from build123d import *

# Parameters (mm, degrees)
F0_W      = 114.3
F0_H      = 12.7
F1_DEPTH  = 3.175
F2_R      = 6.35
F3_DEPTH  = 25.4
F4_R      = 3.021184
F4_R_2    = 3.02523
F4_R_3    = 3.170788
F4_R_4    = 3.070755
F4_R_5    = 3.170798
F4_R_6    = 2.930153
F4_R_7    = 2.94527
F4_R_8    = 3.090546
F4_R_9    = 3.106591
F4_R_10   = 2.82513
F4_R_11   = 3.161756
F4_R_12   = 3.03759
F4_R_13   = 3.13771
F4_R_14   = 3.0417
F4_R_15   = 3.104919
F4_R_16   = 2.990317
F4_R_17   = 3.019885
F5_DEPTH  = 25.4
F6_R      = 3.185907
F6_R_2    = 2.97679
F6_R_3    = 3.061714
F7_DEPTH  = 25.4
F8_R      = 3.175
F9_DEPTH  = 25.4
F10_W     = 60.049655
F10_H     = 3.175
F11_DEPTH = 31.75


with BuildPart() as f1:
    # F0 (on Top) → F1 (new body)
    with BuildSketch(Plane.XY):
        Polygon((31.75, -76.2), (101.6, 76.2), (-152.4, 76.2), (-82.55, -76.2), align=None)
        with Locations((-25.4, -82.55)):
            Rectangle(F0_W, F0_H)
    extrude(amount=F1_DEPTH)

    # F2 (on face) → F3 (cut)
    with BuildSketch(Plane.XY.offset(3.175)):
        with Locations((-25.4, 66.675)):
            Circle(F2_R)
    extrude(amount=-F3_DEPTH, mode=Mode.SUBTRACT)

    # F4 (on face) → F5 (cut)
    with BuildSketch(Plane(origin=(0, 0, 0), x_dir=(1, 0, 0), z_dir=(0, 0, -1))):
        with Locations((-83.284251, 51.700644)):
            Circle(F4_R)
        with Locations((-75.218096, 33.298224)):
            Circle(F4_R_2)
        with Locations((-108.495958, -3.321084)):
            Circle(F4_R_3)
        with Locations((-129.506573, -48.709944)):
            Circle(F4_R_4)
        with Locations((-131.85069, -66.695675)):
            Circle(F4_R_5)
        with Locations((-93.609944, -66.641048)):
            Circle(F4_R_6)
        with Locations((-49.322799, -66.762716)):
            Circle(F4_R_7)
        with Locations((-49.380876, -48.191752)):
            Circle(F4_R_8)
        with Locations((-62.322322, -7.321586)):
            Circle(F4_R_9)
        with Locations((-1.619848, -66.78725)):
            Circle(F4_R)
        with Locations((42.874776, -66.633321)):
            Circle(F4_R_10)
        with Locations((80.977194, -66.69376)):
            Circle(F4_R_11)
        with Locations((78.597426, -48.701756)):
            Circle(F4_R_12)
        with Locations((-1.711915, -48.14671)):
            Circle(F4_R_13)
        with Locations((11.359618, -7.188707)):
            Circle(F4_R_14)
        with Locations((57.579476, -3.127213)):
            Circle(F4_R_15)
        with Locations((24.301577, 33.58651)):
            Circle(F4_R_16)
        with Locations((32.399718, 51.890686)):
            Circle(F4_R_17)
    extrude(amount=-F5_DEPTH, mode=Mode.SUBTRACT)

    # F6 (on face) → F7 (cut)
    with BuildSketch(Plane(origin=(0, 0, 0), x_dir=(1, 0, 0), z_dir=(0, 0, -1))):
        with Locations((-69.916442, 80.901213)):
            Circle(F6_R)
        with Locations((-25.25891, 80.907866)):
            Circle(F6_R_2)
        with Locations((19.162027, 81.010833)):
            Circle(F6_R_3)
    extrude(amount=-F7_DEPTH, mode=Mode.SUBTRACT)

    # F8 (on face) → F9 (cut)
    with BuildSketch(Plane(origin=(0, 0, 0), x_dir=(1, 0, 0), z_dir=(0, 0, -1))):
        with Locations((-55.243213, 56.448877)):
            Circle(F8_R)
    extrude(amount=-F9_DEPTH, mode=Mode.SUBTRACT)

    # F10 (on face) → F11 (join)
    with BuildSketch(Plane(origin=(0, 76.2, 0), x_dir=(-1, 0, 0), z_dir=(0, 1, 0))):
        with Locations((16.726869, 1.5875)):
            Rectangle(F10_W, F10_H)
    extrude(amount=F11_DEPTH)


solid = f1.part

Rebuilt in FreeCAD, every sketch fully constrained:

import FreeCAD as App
import Part
import Sketcher
from FreeCAD import Vector
Q = App.Units.Quantity


def add_polygon(sketch, points):
    """Adds a closed chain of lines whose ends are joined by coincident constraints."""
    first, n = sketch.GeometryCount, len(points)
    for a, b in zip(points, points[1:] + points[:1]):
        sketch.addGeometry(Part.LineSegment(App.Vector(*a, 0), App.Vector(*b, 0)), False)
    for i in range(n):
        sketch.addConstraint(Sketcher.Constraint("Coincident", first + i, 2, first + (i + 1) % n, 1))

doc = App.newDocument("Part")
body = doc.addObject("PartDesign::Body", "Body")

# Sketch on XY plane
sketch1 = body.newObject("Sketcher::SketchObject", "Sketch")
sketch1.AttachmentSupport = (doc.getObject("XY_Plane"), [""])
sketch1.MapMode = "FlatFace"
add_polygon(sketch1, [(31.75, -76.2), (101.6, 76.2), (-152.4, 76.2), (-82.55, -76.2), (-82.55, -88.9), (31.75, -88.9)])  # lines 0-5
sketch1.addConstraint([
    Sketcher.Constraint("Horizontal", 1),
    Sketcher.Constraint("Vertical", 3),
    Sketcher.Constraint("Horizontal", 4),
    Sketcher.Constraint("Vertical", 5),
    Sketcher.Constraint("Horizontal", 2, 2, 5, 2),
    Sketcher.Constraint("Equal", 0, 2),
    Sketcher.Constraint("DistanceX", 1, 2, 1, 1, Q("10 in")),
    Sketcher.Constraint("DistanceX", 4, 1, 4, 2, Q("4.5 in")),
    Sketcher.Constraint("DistanceY", 3, 2, 3, 1, Q("0.5 in")),
    Sketcher.Constraint("DistanceX", -1, 1, 0, 2, Q("4 in")),
    Sketcher.Constraint("DistanceY", -1, 1, 0, 2, Q("3 in")),
    Sketcher.Constraint("DistanceY", 2, 2, -1, 1, Q("3 in")),
])
pad1 = body.newObject("PartDesign::Pad", "Pad")
pad1.Profile = sketch1
pad1.Length = Q("0.125 in")

# Sketch on XY plane
sketch2 = body.newObject("Sketcher::SketchObject", "Sketch001")
sketch2.AttachmentSupport = (doc.getObject("XY_Plane"), [""])
sketch2.MapMode = "FlatFace"
sketch2.AttachmentOffset = App.Placement(Vector(0, 0, 0.125 * 25.4), App.Rotation())
sketch2.addGeometry(Part.Circle(Vector(-25.4, 66.675, 0), Vector(0, 0, 1), 6.35), False)
sketch2.addConstraint([
    Sketcher.Constraint("Diameter", 0, Q("0.5 in")),
    Sketcher.Constraint("DistanceX", 0, 3, -1, 1, Q("1 in")),
    Sketcher.Constraint("DistanceY", -1, 1, 0, 3, Q("2.625 in")),
])
pocket1 = body.newObject("PartDesign::Pocket", "Pocket")
pocket1.Profile = sketch2
pocket1.Length = Q("1 in")

# Sketch on XY plane
sketch3 = body.newObject("Sketcher::SketchObject", "Sketch002")
sketch3.AttachmentSupport = (doc.getObject("XY_Plane"), [""])
sketch3.MapMode = "FlatFace"
sketch3.addGeometry([
    Part.Circle(Vector(-83.284251, -51.700644, 0), Vector(0, 0, 1), 3.021184),  # 0
    Part.Circle(Vector(-75.218096, -33.298224, 0), Vector(0, 0, 1), 3.02523),  # 1
    Part.Circle(Vector(-108.495958, 3.321084, 0), Vector(0, 0, 1), 3.170788),  # 2
    Part.Circle(Vector(-129.506573, 48.709944, 0), Vector(0, 0, 1), 3.070755),  # 3
    Part.Circle(Vector(-131.85069, 66.695675, 0), Vector(0, 0, 1), 3.170798),  # 4
    Part.Circle(Vector(-93.609944, 66.641048, 0), Vector(0, 0, 1), 2.930153),  # 5
    Part.Circle(Vector(-49.322799, 66.762716, 0), Vector(0, 0, 1), 2.94527),  # 6
    Part.Circle(Vector(-49.380876, 48.191752, 0), Vector(0, 0, 1), 3.090546),  # 7
    Part.Circle(Vector(-62.322322, 7.321586, 0), Vector(0, 0, 1), 3.106591),  # 8
    Part.Circle(Vector(-1.619848, 66.78725, 0), Vector(0, 0, 1), 3.021184),  # 9
    Part.Circle(Vector(42.874776, 66.633321, 0), Vector(0, 0, 1), 2.82513),  # 10
    Part.Circle(Vector(80.977194, 66.69376, 0), Vector(0, 0, 1), 3.161756),  # 11
    Part.Circle(Vector(78.597426, 48.701756, 0), Vector(0, 0, 1), 3.03759),  # 12
    Part.Circle(Vector(-1.711915, 48.14671, 0), Vector(0, 0, 1), 3.13771),  # 13
    Part.Circle(Vector(11.359618, 7.188707, 0), Vector(0, 0, 1), 3.0417),  # 14
    Part.Circle(Vector(57.579476, 3.127213, 0), Vector(0, 0, 1), 3.104919),  # 15
    Part.Circle(Vector(24.301577, -33.58651, 0), Vector(0, 0, 1), 2.990317),  # 16
    Part.Circle(Vector(32.399718, -51.890686, 0), Vector(0, 0, 1), 3.019885),  # 17
], False)
sketch3.addConstraint([
    Sketcher.Constraint("Equal", 0, 9),
    Sketcher.Constraint("Diameter", 14, 6.0834),
    Sketcher.Constraint("Diameter", 1, 6.05046),
    Sketcher.Constraint("Diameter", 3, 6.14151),
    Sketcher.Constraint("Diameter", 6, 5.89054),
    Sketcher.Constraint("Diameter", 7, 6.181092),
    Sketcher.Constraint("Diameter", 8, 6.213182),
    Sketcher.Constraint("Diameter", 10, 5.65026),
    Sketcher.Constraint("Diameter", 12, 6.07518),
    Sketcher.Constraint("Diameter", 13, 6.27542),
    Sketcher.Constraint("Diameter", 15, 6.209838),
    Sketcher.Constraint("Diameter", 17, 6.03977),
    Sketcher.Constraint("Diameter", 0, 6.042368),
    Sketcher.Constraint("Diameter", 2, 6.341576),
    Sketcher.Constraint("Diameter", 4, 6.341596),
    Sketcher.Constraint("Diameter", 5, 5.860306),
    Sketcher.Constraint("Diameter", 11, 6.323512),
    Sketcher.Constraint("Diameter", 16, 5.980634),
    Sketcher.Constraint("DistanceX", 1, 3, 6, 3, Q("1.0194999 in")),
    Sketcher.Constraint("DistanceY", 2, 3, 8, 3, Q("0.1575001 in")),
    Sketcher.Constraint("DistanceX", 6, 3, -1, 1, 49.322799),
    Sketcher.Constraint("DistanceY", 1, 3, 4, 3, 99.993899),
    Sketcher.Constraint("DistanceX", 7, 3, 12, 3, 127.978302),
    Sketcher.Constraint("DistanceX", 10, 3, 15, 3, 14.7047),
    Sketcher.Constraint("DistanceX", 16, 3, 15, 3, 33.277899),
    Sketcher.Constraint("DistanceX", 8, 3, 16, 3, 86.623899),
    Sketcher.Constraint("DistanceY", 17, 3, 15, 3, 55.017899),
    Sketcher.Constraint("DistanceX", 14, 3, 17, 3, 21.0401),
    Sketcher.Constraint("DistanceX", 0, 3, -1, 1, 83.284251),
    Sketcher.Constraint("DistanceX", 2, 3, -1, 1, 108.495958),
    Sketcher.Constraint("DistanceX", 4, 3, -1, 1, 131.85069),
    Sketcher.Constraint("DistanceY", -1, 1, 9, 3, 66.78725),
    Sketcher.Constraint("DistanceY", -1, 1, 10, 3, 66.633321),
    Sketcher.Constraint("DistanceY", -1, 1, 11, 3, 66.69376),
    Sketcher.Constraint("DistanceY", -1, 1, 13, 3, 48.14671),
    Sketcher.Constraint("DistanceY", 16, 3, -1, 1, 33.58651),
    Sketcher.Constraint("DistanceY", 0, 3, 1, 3, 18.40242),
    Sketcher.Constraint("DistanceY", 2, 3, 3, 3, 45.38886),
    Sketcher.Constraint("DistanceY", 3, 3, 4, 3, 17.985731),
    Sketcher.Constraint("DistanceX", 3, 3, 5, 3, 35.896629),
    Sketcher.Constraint("DistanceY", 1, 3, 5, 3, 99.939272),
    Sketcher.Constraint("DistanceY", 3, 3, 6, 3, 18.052772),
    Sketcher.Constraint("DistanceY", 2, 3, 7, 3, 44.870668),
    Sketcher.Constraint("DistanceX", 0, 3, 8, 3, 20.961929),
    Sketcher.Constraint("DistanceX", 6, 3, 9, 3, 47.702951),
    Sketcher.Constraint("DistanceX", 7, 3, 9, 3, 47.761028),
    Sketcher.Constraint("DistanceY", 7, 3, 10, 3, 18.441569),
    Sketcher.Constraint("DistanceX", 5, 3, 10, 3, 136.48472),
    Sketcher.Constraint("DistanceX", 9, 3, 11, 3, 82.597042),
    Sketcher.Constraint("DistanceY", 12, 3, 6, 3, 18.06096),
    Sketcher.Constraint("DistanceX", 7, 3, 13, 3, 47.668961),
    Sketcher.Constraint("DistanceX", 8, 3, 14, 3, 73.68194),
    Sketcher.Constraint("DistanceY", 14, 3, 8, 3, 0.132879),
    Sketcher.Constraint("DistanceY", -1, 1, 15, 3, 3.127213),
])
pocket2 = body.newObject("PartDesign::Pocket", "Pocket001")
pocket2.Profile = sketch3
pocket2.Length = Q("1 in")
pocket2.Reversed = True

# Sketch on XY plane
sketch4 = body.newObject("Sketcher::SketchObject", "Sketch003")
sketch4.AttachmentSupport = (doc.getObject("XY_Plane"), [""])
sketch4.MapMode = "FlatFace"
sketch4.addGeometry([
    Part.Circle(Vector(-69.916442, -80.901213, 0), Vector(0, 0, 1), 3.185907),
    Part.Circle(Vector(-25.25891, -80.907866, 0), Vector(0, 0, 1), 2.97679),
    Part.Circle(Vector(19.162027, -81.010833, 0), Vector(0, 0, 1), 3.061714),
], False)
sketch4.addConstraint([
    Sketcher.Constraint("Diameter", 1, 5.95358),
    Sketcher.Constraint("Diameter", 0, 6.371814),
    Sketcher.Constraint("Diameter", 2, 6.123428),
    Sketcher.Constraint("DistanceX", 1, 3, -1, 1, 25.25891),
    Sketcher.Constraint("DistanceX", 0, 3, 2, 3, 89.078469),
    Sketcher.Constraint("DistanceY", 2, 3, 0, 3, 0.10962),
    Sketcher.Constraint("DistanceX", 0, 3, -1, 1, 69.916442),
    Sketcher.Constraint("DistanceY", 0, 3, -1, 1, 80.901213),
    Sketcher.Constraint("DistanceY", 1, 3, -1, 1, 80.907866),
])
pocket3 = body.newObject("PartDesign::Pocket", "Pocket002")
pocket3.Profile = sketch4
pocket3.Length = Q("1 in")
pocket3.Reversed = True

# Sketch on XY plane
sketch5 = body.newObject("Sketcher::SketchObject", "Sketch004")
sketch5.AttachmentSupport = (doc.getObject("XY_Plane"), [""])
sketch5.MapMode = "FlatFace"
sketch5.addGeometry(Part.Circle(Vector(-55.243213, -56.448877, 0), Vector(0, 0, 1), 3.175), False)
sketch5.addConstraint([
    Sketcher.Constraint("Diameter", 0, Q("0.25 in")),
    Sketcher.Constraint("DistanceX", 0, 3, -1, 1, 55.243213),
    Sketcher.Constraint("DistanceY", 0, 3, -1, 1, 56.448877),
])
pocket4 = body.newObject("PartDesign::Pocket", "Pocket003")
pocket4.Profile = sketch5
pocket4.Length = Q("1 in")
pocket4.Reversed = True

# Sketch on XZ plane
sketch6 = body.newObject("Sketcher::SketchObject", "Sketch005")
sketch6.AttachmentSupport = (doc.getObject("XZ_Plane"), [""])
sketch6.MapMode = "FlatFace"
sketch6.AttachmentOffset = App.Placement(Vector(0, 0, -3 * 25.4), App.Rotation())
add_polygon(sketch6, [(13.297959, 3.175), (13.297959, 0), (-46.751697, 0), (-46.751697, 3.175)])  # lines 0-3
sketch6.addConstraint([
    Sketcher.Constraint("Vertical", 0),
    Sketcher.Constraint("Horizontal", 1),
    Sketcher.Constraint("Vertical", 2),
    Sketcher.Constraint("Horizontal", 3),
    Sketcher.Constraint("PointOnObject", 0, 2, -1),
    Sketcher.Constraint("DistanceY", 0, 2, 0, 1, Q("0.125 in")),
    Sketcher.Constraint("DistanceX", 1, 2, 1, 1, 60.049655),
    Sketcher.Constraint("DistanceX", -1, 1, 0, 2, 13.297959),
])
pad2 = body.newObject("PartDesign::Pad", "Pad001")
pad2.Profile = sketch6
pad2.Length = Q("1.25 in")
pad2.Reversed = True

doc.recompute()
